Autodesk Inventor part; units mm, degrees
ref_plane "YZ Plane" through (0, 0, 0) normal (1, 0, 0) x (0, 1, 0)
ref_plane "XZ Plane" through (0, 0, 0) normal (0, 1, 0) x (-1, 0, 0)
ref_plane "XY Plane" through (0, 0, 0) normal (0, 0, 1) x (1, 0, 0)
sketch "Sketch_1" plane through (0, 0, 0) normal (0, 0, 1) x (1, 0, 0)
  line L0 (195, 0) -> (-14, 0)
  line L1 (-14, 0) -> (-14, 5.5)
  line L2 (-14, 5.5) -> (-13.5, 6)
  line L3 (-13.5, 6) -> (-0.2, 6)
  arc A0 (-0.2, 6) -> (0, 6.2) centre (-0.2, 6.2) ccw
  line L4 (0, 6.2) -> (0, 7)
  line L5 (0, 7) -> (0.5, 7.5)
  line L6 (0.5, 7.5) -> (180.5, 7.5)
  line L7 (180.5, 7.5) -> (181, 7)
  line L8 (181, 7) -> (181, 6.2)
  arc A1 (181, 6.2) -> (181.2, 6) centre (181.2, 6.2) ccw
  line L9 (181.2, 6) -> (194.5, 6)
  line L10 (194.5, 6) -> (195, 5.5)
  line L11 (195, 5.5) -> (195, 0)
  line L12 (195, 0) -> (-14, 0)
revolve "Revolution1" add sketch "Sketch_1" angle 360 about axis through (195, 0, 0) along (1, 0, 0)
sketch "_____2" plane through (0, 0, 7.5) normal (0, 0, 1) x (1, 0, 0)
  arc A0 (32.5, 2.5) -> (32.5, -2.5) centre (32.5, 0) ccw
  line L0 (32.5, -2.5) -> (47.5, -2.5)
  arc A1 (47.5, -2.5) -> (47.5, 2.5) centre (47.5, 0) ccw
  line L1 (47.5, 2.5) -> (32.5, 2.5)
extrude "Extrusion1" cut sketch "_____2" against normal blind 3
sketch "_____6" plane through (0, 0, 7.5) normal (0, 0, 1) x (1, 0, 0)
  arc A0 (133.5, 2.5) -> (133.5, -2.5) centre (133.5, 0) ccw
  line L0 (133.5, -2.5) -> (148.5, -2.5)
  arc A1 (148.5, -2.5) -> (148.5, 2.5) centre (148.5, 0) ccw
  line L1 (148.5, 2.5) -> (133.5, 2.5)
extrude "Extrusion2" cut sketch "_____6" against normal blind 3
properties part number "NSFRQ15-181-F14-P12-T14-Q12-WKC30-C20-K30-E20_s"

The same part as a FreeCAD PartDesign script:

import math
import FreeCAD as App
import Part
import Sketcher

V = App.Vector

doc = App.newDocument("Part")
body = doc.addObject("PartDesign::Body", "Body")

sketch1 = body.newObject("Sketcher::SketchObject", "Sketch")
sketch1.AttachmentSupport = (doc.getObject("XY_Plane"), [""])
sketch1.MapMode = "FlatFace"
sketch1.addGeometry([
    Part.LineSegment(V(-14, 0, 0), V(195, 0, 0)),
    Part.LineSegment(V(195, 0, 0), V(195, 5.5, 0)),
    Part.LineSegment(V(195, 5.5, 0), V(194.5, 6, 0)),
    Part.LineSegment(V(194.5, 6, 0), V(181.2, 6, 0)),
    Part.ArcOfCircle(Part.Circle(V(181.2, 6.2, 0), V(0, 0, 1), 0.2), math.radians(180), math.radians(270)),
    Part.LineSegment(V(181, 6.2, 0), V(181, 7, 0)),
    Part.LineSegment(V(181, 7, 0), V(180.5, 7.5, 0)),
    Part.LineSegment(V(180.5, 7.5, 0), V(0.5, 7.5, 0)),
    Part.LineSegment(V(0.5, 7.5, 0), V(0, 7, 0)),
    Part.LineSegment(V(0, 7, 0), V(0, 6.2, 0)),
    Part.ArcOfCircle(Part.Circle(V(-0.2, 6.2, 0), V(0, 0, 1), 0.2), math.radians(-90), math.radians(0)),
    Part.LineSegment(V(-0.2, 6, 0), V(-13.5, 6, 0)),
    Part.LineSegment(V(-13.5, 6, 0), V(-14, 5.5, 0)),
    Part.LineSegment(V(-14, 5.5, 0), V(-14, 0, 0)),
], False)
sketch1.addConstraint([
    Sketcher.Constraint("Coincident", 0, 2, 1, 1),
    Sketcher.Constraint("Coincident", 1, 2, 2, 1),
    Sketcher.Constraint("Coincident", 2, 2, 3, 1),
    Sketcher.Constraint("Tangent", 3, 2, 4, 2),
    Sketcher.Constraint("Tangent", 4, 1, 5, 1),
    Sketcher.Constraint("Coincident", 5, 2, 6, 1),
    Sketcher.Constraint("Coincident", 6, 2, 7, 1),
    Sketcher.Constraint("Coincident", 7, 2, 8, 1),
    Sketcher.Constraint("Coincident", 8, 2, 9, 1),
    Sketcher.Constraint("Tangent", 9, 2, 10, 2),
    Sketcher.Constraint("Tangent", 10, 1, 11, 1),
    Sketcher.Constraint("Coincident", 11, 2, 12, 1),
    Sketcher.Constraint("Coincident", 12, 2, 13, 1),
    Sketcher.Constraint("Coincident", 13, 2, 0, 1),
    Sketcher.Constraint("Horizontal", 0),
    Sketcher.Constraint("Vertical", 1),
    Sketcher.Constraint("Horizontal", 3),
    Sketcher.Constraint("Vertical", 5),
    Sketcher.Constraint("Horizontal", 7),
    Sketcher.Constraint("Vertical", 9),
    Sketcher.Constraint("Horizontal", 11),
    Sketcher.Constraint("Vertical", 13),
    Sketcher.Constraint("Equal", 4, 10),
    Sketcher.Constraint("PointOnObject", 0, 2, -1),
    Sketcher.Constraint("PointOnObject", 8, 2, -2),
    Sketcher.Constraint("Parallel", 2, 6),
    Sketcher.Constraint("Perpendicular", 6, 8),
    Sketcher.Constraint("Parallel", 8, 12),
    Sketcher.Constraint("Horizontal", 4, 3, 10, 3),
    Sketcher.Constraint("Horizontal", 5, 2, 8, 2),
    Sketcher.Constraint("Horizontal", 1, 2, 12, 2),
    Sketcher.Constraint("Equal", 3, 11),
    Sketcher.Constraint("Equal", 2, 6),
    Sketcher.Constraint("Equal", 6, 8),
    Sketcher.Constraint("Radius", 4, 0.2),
    Sketcher.Constraint("DistanceX", 0, 1, 0, 2, 209.0),
    Sketcher.Constraint("DistanceX", 7, 2, 7, 1, 180.0),
    Sketcher.Constraint("DistanceX", 3, 2, 3, 1, 13.3),
    Sketcher.Constraint("DistanceY", 1, 1, 1, 2, 5.5),
    Sketcher.Constraint("DistanceY", 5, 1, 5, 2, 0.8),
])
revolution = body.newObject("PartDesign::Revolution", "Revolution")
revolution.Profile = sketch1
revolution.ReferenceAxis = (sketch1, ["H_Axis"])
revolution.Angle = 360

sketch2 = body.newObject("Sketcher::SketchObject", "Sketch001")
sketch2.AttachmentSupport = (doc.getObject("XY_Plane"), [""])
sketch2.MapMode = "FlatFace"
sketch2.AttachmentOffset = App.Placement(V(0, 0, 7.5), App.Rotation())
sketch2.addGeometry([
    Part.LineSegment(V(47.5, 2.5, 0), V(32.5, 2.5, 0)),
    Part.ArcOfCircle(Part.Circle(V(32.5, 0, 0), V(0, 0, 1), 2.5), math.radians(90), math.radians(270)),
    Part.LineSegment(V(32.5, -2.5, 0), V(47.5, -2.5, 0)),
    Part.ArcOfCircle(Part.Circle(V(47.5, 0, 0), V(0, 0, 1), 2.5), math.radians(-90), math.radians(90)),
], False)
sketch2.addConstraint([
    Sketcher.Constraint("Tangent", 0, 2, 1, 1),
    Sketcher.Constraint("Tangent", 1, 2, 2, 1),
    Sketcher.Constraint("Tangent", 2, 2, 3, 1),
    Sketcher.Constraint("Tangent", 3, 2, 0, 1),
    Sketcher.Constraint("Horizontal", 0),
    Sketcher.Constraint("Horizontal", 2),
    Sketcher.Constraint("PointOnObject", 1, 3, -1),
    Sketcher.Constraint("Radius", 1, 2.5),
    Sketcher.Constraint("DistanceX", 0, 2, 0, 1, 15.0),
    Sketcher.Constraint("DistanceX", -1, 1, 1, 3, 32.5),
])
pocket1 = body.newObject("PartDesign::Pocket", "Pocket")
pocket1.Profile = sketch2
pocket1.Length = 3

sketch3 = body.newObject("Sketcher::SketchObject", "Sketch002")
sketch3.AttachmentSupport = (doc.getObject("XY_Plane"), [""])
sketch3.MapMode = "FlatFace"
sketch3.AttachmentOffset = App.Placement(V(0, 0, 7.5), App.Rotation())
sketch3.addGeometry([
    Part.LineSegment(V(148.5, 2.5, 0), V(133.5, 2.5, 0)),
    Part.ArcOfCircle(Part.Circle(V(133.5, 0, 0), V(0, 0, 1), 2.5), math.radians(90), math.radians(270)),
    Part.LineSegment(V(133.5, -2.5, 0), V(148.5, -2.5, 0)),
    Part.ArcOfCircle(Part.Circle(V(148.5, 0, 0), V(0, 0, 1), 2.5), math.radians(-90), math.radians(90)),
], False)
sketch3.addConstraint([
    Sketcher.Constraint("Tangent", 0, 2, 1, 1),
    Sketcher.Constraint("Tangent", 1, 2, 2, 1),
    Sketcher.Constraint("Tangent", 2, 2, 3, 1),
    Sketcher.Constraint("Tangent", 3, 2, 0, 1),
    Sketcher.Constraint("Horizontal", 0),
    Sketcher.Constraint("Horizontal", 2),
    Sketcher.Constraint("PointOnObject", 1, 3, -1),
    Sketcher.Constraint("Radius", 1, 2.5),
    Sketcher.Constraint("DistanceX", 0, 2, 0, 1, 15.0),
    Sketcher.Constraint("DistanceX", -1, 1, 1, 3, 133.5),
])
pocket2 = body.newObject("PartDesign::Pocket", "Pocket001")
pocket2.Profile = sketch3
pocket2.Length = 3

doc.recompute()
